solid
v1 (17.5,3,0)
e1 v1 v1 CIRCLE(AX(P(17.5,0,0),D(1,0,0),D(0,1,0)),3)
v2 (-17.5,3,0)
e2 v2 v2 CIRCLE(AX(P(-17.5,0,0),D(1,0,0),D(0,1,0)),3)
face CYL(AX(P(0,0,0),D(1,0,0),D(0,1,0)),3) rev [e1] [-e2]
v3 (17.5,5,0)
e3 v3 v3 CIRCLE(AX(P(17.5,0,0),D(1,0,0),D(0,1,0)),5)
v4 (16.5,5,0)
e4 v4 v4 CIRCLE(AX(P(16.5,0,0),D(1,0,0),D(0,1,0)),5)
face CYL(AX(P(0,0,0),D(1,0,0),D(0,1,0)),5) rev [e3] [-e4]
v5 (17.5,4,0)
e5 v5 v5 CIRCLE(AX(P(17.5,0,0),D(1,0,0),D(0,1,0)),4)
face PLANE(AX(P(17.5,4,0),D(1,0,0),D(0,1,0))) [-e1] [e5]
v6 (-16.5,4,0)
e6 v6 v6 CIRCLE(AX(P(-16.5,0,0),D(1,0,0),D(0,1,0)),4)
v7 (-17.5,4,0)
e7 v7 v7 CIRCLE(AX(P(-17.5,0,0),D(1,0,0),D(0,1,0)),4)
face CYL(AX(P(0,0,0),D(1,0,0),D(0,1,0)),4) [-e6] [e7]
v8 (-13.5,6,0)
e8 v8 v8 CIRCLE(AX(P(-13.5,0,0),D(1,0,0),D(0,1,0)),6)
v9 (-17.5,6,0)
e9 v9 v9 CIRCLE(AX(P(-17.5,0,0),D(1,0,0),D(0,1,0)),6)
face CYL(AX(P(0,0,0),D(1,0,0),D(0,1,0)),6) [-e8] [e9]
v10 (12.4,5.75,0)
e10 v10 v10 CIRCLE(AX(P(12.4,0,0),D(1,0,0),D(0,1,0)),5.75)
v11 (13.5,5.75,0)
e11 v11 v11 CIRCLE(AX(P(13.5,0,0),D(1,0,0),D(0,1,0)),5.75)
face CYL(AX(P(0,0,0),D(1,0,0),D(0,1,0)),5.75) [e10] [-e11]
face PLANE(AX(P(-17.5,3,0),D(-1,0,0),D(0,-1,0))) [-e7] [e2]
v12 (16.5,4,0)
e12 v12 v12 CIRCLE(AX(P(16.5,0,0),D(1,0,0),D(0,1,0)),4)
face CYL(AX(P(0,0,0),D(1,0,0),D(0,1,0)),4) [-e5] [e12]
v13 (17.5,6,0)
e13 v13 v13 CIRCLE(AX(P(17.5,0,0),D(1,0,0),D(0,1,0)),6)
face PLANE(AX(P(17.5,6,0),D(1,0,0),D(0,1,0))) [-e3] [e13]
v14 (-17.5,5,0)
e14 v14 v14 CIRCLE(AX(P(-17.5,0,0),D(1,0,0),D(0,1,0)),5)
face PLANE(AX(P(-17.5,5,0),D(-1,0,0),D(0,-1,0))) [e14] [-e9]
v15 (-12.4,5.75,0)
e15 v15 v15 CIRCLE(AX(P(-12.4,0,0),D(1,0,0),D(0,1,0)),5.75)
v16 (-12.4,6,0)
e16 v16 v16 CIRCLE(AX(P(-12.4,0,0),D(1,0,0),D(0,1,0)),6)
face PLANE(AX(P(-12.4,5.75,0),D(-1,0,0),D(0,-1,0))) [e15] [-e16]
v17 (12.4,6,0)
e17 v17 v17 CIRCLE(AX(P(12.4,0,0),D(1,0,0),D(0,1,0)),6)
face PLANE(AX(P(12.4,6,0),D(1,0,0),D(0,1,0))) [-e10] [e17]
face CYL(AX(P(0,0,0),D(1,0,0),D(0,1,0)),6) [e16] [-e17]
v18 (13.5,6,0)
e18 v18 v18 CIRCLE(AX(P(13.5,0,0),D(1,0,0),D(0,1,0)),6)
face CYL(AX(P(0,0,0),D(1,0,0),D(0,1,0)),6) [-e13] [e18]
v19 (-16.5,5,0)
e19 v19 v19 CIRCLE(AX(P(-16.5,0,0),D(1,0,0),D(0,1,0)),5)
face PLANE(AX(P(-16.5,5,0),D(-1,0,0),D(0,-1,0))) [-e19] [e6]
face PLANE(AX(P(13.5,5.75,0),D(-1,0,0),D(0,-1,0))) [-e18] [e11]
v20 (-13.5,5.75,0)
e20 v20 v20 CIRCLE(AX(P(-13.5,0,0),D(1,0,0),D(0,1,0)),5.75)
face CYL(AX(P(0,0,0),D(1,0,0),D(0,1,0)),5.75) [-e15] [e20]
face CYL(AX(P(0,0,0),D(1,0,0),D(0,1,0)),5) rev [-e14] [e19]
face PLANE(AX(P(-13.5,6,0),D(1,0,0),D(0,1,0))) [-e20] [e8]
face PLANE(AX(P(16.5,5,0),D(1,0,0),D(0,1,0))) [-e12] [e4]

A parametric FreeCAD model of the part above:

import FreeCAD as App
import Part
import Sketcher

V = App.Vector

doc = App.newDocument("Part")
body = doc.addObject("PartDesign::Body", "Body")

# Sketch on XY plane
sketch1 = body.newObject("Sketcher::SketchObject", "Sketch")
sketch1.AttachmentSupport = (doc.getObject("XY_Plane"), [""])
sketch1.MapMode = "FlatFace"
sketch1.addGeometry([
    Part.LineSegment(V(-13.5, 6, 0), V(-17.5, 6, 0)),  # 0
    Part.LineSegment(V(-17.5, 6, 0), V(-17.5, 5, 0)),  # 1
    Part.LineSegment(V(-17.5, 5, 0), V(-16.5, 5, 0)),  # 2
    Part.LineSegment(V(-16.5, 5, 0), V(-16.5, 4, 0)),  # 3
    Part.LineSegment(V(-16.5, 4, 0), V(-17.5, 4, 0)),  # 4
    Part.LineSegment(V(-17.5, 4, 0), V(-17.5, 3, 0)),  # 5
    Part.LineSegment(V(-17.5, 3, 0), V(17.5, 3, 0)),  # 6
    Part.LineSegment(V(17.5, 3, 0), V(17.5, 4, 0)),  # 7
    Part.LineSegment(V(17.5, 4, 0), V(16.5, 4, 0)),  # 8
    Part.LineSegment(V(16.5, 4, 0), V(16.5, 5, 0)),  # 9
    Part.LineSegment(V(16.5, 5, 0), V(17.5, 5, 0)),  # 10
    Part.LineSegment(V(17.5, 5, 0), V(17.5, 6, 0)),  # 11
    Part.LineSegment(V(17.5, 6, 0), V(13.5, 6, 0)),  # 12
    Part.LineSegment(V(13.5, 6, 0), V(13.5, 5.75, 0)),  # 13
    Part.LineSegment(V(13.5, 5.75, 0), V(12.4, 5.75, 0)),  # 14
    Part.LineSegment(V(12.4, 5.75, 0), V(12.4, 6, 0)),  # 15
    Part.LineSegment(V(12.4, 6, 0), V(-12.4, 6, 0)),  # 16
    Part.LineSegment(V(-12.4, 6, 0), V(-12.4, 5.75, 0)),  # 17
    Part.LineSegment(V(-12.4, 5.75, 0), V(-13.5, 5.75, 0)),  # 18
    Part.LineSegment(V(-13.5, 5.75, 0), V(-13.5, 6, 0)),  # 19
], False)
sketch1.addConstraint([
    Sketcher.Constraint("Coincident", 0, 2, 1, 1),
    Sketcher.Constraint("Coincident", 1, 2, 2, 1),
    Sketcher.Constraint("Coincident", 2, 2, 3, 1),
    Sketcher.Constraint("Coincident", 3, 2, 4, 1),
    Sketcher.Constraint("Coincident", 4, 2, 5, 1),
    Sketcher.Constraint("Coincident", 5, 2, 6, 1),
    Sketcher.Constraint("Coincident", 6, 2, 7, 1),
    Sketcher.Constraint("Coincident", 7, 2, 8, 1),
    Sketcher.Constraint("Coincident", 8, 2, 9, 1),
    Sketcher.Constraint("Coincident", 9, 2, 10, 1),
    Sketcher.Constraint("Coincident", 10, 2, 11, 1),
    Sketcher.Constraint("Coincident", 11, 2, 12, 1),
    Sketcher.Constraint("Coincident", 12, 2, 13, 1),
    Sketcher.Constraint("Coincident", 13, 2, 14, 1),
    Sketcher.Constraint("Coincident", 14, 2, 15, 1),
    Sketcher.Constraint("Coincident", 15, 2, 16, 1),
    Sketcher.Constraint("Coincident", 16, 2, 17, 1),
    Sketcher.Constraint("Coincident", 17, 2, 18, 1),
    Sketcher.Constraint("Coincident", 18, 2, 19, 1),
    Sketcher.Constraint("Coincident", 19, 2, 0, 1),
    Sketcher.Constraint("Horizontal", 0),
    Sketcher.Constraint("Vertical", 1),
    Sketcher.Constraint("Horizontal", 2),
    Sketcher.Constraint("Vertical", 3),
    Sketcher.Constraint("Horizontal", 4),
    Sketcher.Constraint("Vertical", 5),
    Sketcher.Constraint("Horizontal", 6),
    Sketcher.Constraint("Vertical", 7),
    Sketcher.Constraint("Horizontal", 8),
    Sketcher.Constraint("Vertical", 9),
    Sketcher.Constraint("Horizontal", 10),
    Sketcher.Constraint("Vertical", 11),
    Sketcher.Constraint("Horizontal", 12),
    Sketcher.Constraint("Vertical", 13),
    Sketcher.Constraint("Horizontal", 14),
    Sketcher.Constraint("Vertical", 15),
    Sketcher.Constraint("Horizontal", 16),
    Sketcher.Constraint("Vertical", 17),
    Sketcher.Constraint("Horizontal", 18),
    Sketcher.Constraint("Vertical", 19),
    Sketcher.Constraint("Symmetric", 4, 2, 7, 2, -2),
    Sketcher.Constraint("Symmetric", 2, 2, 9, 2, -2),
    Sketcher.Constraint("Symmetric", 0, 2, 11, 2, -2),
    Sketcher.Constraint("Symmetric", 14, 2, 17, 2, -2),
    Sketcher.Constraint("Horizontal", 12, 2, 15, 2),
    Sketcher.Constraint("Vertical", 1, 2, 4, 2),
    Sketcher.Constraint("Equal", 0, 12),
    Sketcher.Constraint("Equal", 10, 1),
    Sketcher.Constraint("Equal", 1, 3),
    Sketcher.Constraint("Equal", 3, 5),
    Sketcher.Constraint("DistanceX", 0, 2, 0, 1, 4.0),
    Sketcher.Constraint("DistanceX", 2, 1, 2, 2, 1.0),
    Sketcher.Constraint("DistanceX", 6, 1, 6, 2, 35.0),
    Sketcher.Constraint("DistanceX", 14, 2, 14, 1, 1.1),
    Sketcher.Constraint("DistanceY", -1, 1, 0, 2, 6.0),
    Sketcher.Constraint("DistanceY", 13, 2, 13, 1, 0.25),
])
revolution = body.newObject("PartDesign::Revolution", "Revolution")
revolution.Profile = sketch1
revolution.ReferenceAxis = (sketch1, ["H_Axis"])
revolution.Angle = 360

doc.recompute()
